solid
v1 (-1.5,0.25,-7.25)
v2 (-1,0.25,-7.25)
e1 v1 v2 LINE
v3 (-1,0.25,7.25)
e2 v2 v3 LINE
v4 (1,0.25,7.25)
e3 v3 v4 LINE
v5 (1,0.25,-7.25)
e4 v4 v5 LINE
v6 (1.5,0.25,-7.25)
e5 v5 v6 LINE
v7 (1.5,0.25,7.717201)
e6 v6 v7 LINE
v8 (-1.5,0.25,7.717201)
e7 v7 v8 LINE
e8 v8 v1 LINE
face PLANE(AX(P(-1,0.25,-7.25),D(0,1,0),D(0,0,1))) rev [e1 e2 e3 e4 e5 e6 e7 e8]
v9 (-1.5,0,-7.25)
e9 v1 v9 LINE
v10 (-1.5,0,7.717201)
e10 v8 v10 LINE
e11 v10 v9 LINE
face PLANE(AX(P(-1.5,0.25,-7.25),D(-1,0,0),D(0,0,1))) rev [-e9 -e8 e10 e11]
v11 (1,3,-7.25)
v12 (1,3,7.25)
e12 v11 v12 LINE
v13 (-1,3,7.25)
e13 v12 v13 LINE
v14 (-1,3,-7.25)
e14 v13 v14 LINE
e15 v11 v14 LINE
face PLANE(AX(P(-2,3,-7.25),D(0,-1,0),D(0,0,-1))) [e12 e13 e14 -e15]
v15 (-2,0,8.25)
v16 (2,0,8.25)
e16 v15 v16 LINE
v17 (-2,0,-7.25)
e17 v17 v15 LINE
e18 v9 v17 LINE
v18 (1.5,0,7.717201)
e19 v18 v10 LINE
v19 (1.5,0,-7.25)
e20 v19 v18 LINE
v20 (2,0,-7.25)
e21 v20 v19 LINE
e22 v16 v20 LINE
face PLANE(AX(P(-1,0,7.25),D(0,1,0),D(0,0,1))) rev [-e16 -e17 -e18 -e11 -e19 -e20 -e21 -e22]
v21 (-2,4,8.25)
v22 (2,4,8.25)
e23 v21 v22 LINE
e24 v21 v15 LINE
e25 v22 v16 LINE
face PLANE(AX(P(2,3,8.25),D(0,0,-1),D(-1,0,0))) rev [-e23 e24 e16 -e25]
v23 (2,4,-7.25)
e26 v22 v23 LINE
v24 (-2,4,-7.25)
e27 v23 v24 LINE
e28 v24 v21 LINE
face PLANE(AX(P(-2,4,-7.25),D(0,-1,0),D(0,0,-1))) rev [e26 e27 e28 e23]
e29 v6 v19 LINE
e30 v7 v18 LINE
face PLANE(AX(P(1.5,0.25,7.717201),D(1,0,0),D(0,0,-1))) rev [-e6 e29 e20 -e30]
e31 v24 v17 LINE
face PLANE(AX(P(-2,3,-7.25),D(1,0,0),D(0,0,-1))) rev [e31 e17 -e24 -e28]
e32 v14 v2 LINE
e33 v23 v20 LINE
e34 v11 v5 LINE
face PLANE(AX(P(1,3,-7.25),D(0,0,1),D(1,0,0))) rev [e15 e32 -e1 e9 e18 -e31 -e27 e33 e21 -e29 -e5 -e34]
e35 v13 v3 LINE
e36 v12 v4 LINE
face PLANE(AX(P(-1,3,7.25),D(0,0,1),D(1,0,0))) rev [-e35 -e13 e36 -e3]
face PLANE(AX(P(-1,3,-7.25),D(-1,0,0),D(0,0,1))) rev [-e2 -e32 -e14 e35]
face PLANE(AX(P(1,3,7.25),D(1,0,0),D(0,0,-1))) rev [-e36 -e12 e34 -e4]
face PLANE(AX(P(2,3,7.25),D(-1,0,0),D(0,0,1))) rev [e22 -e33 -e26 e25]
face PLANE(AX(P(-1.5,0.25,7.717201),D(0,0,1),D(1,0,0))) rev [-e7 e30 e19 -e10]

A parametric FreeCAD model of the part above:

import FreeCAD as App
import Part
import Sketcher
from FreeCAD import Vector


def add_polygon(sketch, points):
    """Adds a closed chain of lines whose ends are joined by coincident constraints."""
    first, n = sketch.GeometryCount, len(points)
    for a, b in zip(points, points[1:] + points[:1]):
        sketch.addGeometry(Part.LineSegment(App.Vector(*a, 0), App.Vector(*b, 0)), False)
    for i in range(n):
        sketch.addConstraint(Sketcher.Constraint("Coincident", first + i, 2, first + (i + 1) % n, 1))

doc = App.newDocument("Part")
body = doc.addObject("PartDesign::Body", "Body")

# Sketch on XZ plane
sketch1 = body.newObject("Sketcher::SketchObject", "Sketch")
sketch1.AttachmentSupport = (doc.getObject("XZ_Plane"), [""])
sketch1.MapMode = "FlatFace"
add_polygon(sketch1, [(1, 7.25), (-1, 7.25), (-1, -7.25), (-2, -7.25), (-2, 8.25), (2, 8.25), (2, -7.25), (1, -7.25)])  # lines 0-7
sketch1.addConstraint(Sketcher.Constraint("Horizontal", 0))
sketch1.addConstraint(Sketcher.Constraint("Vertical", 1))
sketch1.addConstraint(Sketcher.Constraint("Horizontal", 2))
sketch1.addConstraint(Sketcher.Constraint("Vertical", 3))
sketch1.addConstraint(Sketcher.Constraint("Horizontal", 4))
sketch1.addConstraint(Sketcher.Constraint("Vertical", 5))
sketch1.addConstraint(Sketcher.Constraint("Horizontal", 6))
sketch1.addConstraint(Sketcher.Constraint("Vertical", 7))
sketch1.addConstraint(Sketcher.Constraint("Symmetric", 0, 2, 6, 2, -1, 1))
sketch1.addConstraint(Sketcher.Constraint("Symmetric", 2, 2, 5, 2, -2))
sketch1.addConstraint(Sketcher.Constraint("DistanceX", 0, 2, 0, 1, 2.0))
sketch1.addConstraint(Sketcher.Constraint("DistanceX", 2, 2, 2, 1, 1.0))
sketch1.addConstraint(Sketcher.Constraint("DistanceY", 1, 2, 1, 1, 14.5))
sketch1.addConstraint(Sketcher.Constraint("DistanceY", 3, 1, 3, 2, 15.5))
pad1 = body.newObject("PartDesign::Pad", "Pad")
pad1.Profile = sketch1
pad1.Length = 3
pad1.Reversed = True

# Sketch on XZ plane
sketch2 = body.newObject("Sketcher::SketchObject", "Sketch001")
sketch2.AttachmentSupport = (doc.getObject("XZ_Plane"), [""])
sketch2.MapMode = "FlatFace"
sketch2.AttachmentOffset = App.Placement(Vector(0, 0, -3), App.Rotation())
add_polygon(sketch2, [(-2, -7.25), (-2, 8.25), (2, 8.25), (2, -7.25)])  # lines 0-3
sketch2.addConstraint(Sketcher.Constraint("Vertical", 0))
sketch2.addConstraint(Sketcher.Constraint("Horizontal", 1))
sketch2.addConstraint(Sketcher.Constraint("Vertical", 2))
sketch2.addConstraint(Sketcher.Constraint("Horizontal", 3))
sketch2.addConstraint(Sketcher.Constraint("DistanceX", 1, 1, 1, 2, 4.0))
sketch2.addConstraint(Sketcher.Constraint("DistanceY", 0, 1, 0, 2, 15.5))
sketch2.addConstraint(Sketcher.Constraint("DistanceX", 0, 2, -1, 1, 2.0))
sketch2.addConstraint(Sketcher.Constraint("DistanceY", -1, 1, 0, 2, 8.25))
pad2 = body.newObject("PartDesign::Pad", "Pad001")
pad2.Profile = sketch2
pad2.Length = 1
pad2.Reversed = True

# Sketch on XZ plane
sketch3 = body.newObject("Sketcher::SketchObject", "Sketch002")
sketch3.AttachmentSupport = (doc.getObject("XZ_Plane"), [""])
sketch3.MapMode = "FlatFace"
add_polygon(sketch3, [(-1, 7.25), (1, 7.25), (1, -7.25), (1.5, -7.25), (1.5, 7.717201), (-1.5, 7.717201), (-1.5, -7.25), (-1, -7.25)])  # lines 0-7
sketch3.addConstraint(Sketcher.Constraint("Horizontal", 0))
sketch3.addConstraint(Sketcher.Constraint("Vertical", 1))
sketch3.addConstraint(Sketcher.Constraint("Horizontal", 2))
sketch3.addConstraint(Sketcher.Constraint("Vertical", 3))
sketch3.addConstraint(Sketcher.Constraint("Horizontal", 4))
sketch3.addConstraint(Sketcher.Constraint("Vertical", 5))
sketch3.addConstraint(Sketcher.Constraint("Horizontal", 6))
sketch3.addConstraint(Sketcher.Constraint("Vertical", 7))
sketch3.addConstraint(Sketcher.Constraint("Symmetric", 0, 2, 6, 2, -1, 1))
sketch3.addConstraint(Sketcher.Constraint("Symmetric", 2, 2, 5, 2, -2))
sketch3.addConstraint(Sketcher.Constraint("DistanceX", 0, 1, 0, 2, 2.0))
sketch3.addConstraint(Sketcher.Constraint("DistanceX", 4, 2, 4, 1, 3.0))
sketch3.addConstraint(Sketcher.Constraint("DistanceY", 1, 2, 1, 1, 14.5))
sketch3.addConstraint(Sketcher.Constraint("DistanceY", 3, 1, 3, 2, 14.967201))
pocket1 = body.newObject("PartDesign::Pocket", "Pocket")
pocket1.Profile = sketch3
pocket1.Length = 0.25

doc.recompute()
